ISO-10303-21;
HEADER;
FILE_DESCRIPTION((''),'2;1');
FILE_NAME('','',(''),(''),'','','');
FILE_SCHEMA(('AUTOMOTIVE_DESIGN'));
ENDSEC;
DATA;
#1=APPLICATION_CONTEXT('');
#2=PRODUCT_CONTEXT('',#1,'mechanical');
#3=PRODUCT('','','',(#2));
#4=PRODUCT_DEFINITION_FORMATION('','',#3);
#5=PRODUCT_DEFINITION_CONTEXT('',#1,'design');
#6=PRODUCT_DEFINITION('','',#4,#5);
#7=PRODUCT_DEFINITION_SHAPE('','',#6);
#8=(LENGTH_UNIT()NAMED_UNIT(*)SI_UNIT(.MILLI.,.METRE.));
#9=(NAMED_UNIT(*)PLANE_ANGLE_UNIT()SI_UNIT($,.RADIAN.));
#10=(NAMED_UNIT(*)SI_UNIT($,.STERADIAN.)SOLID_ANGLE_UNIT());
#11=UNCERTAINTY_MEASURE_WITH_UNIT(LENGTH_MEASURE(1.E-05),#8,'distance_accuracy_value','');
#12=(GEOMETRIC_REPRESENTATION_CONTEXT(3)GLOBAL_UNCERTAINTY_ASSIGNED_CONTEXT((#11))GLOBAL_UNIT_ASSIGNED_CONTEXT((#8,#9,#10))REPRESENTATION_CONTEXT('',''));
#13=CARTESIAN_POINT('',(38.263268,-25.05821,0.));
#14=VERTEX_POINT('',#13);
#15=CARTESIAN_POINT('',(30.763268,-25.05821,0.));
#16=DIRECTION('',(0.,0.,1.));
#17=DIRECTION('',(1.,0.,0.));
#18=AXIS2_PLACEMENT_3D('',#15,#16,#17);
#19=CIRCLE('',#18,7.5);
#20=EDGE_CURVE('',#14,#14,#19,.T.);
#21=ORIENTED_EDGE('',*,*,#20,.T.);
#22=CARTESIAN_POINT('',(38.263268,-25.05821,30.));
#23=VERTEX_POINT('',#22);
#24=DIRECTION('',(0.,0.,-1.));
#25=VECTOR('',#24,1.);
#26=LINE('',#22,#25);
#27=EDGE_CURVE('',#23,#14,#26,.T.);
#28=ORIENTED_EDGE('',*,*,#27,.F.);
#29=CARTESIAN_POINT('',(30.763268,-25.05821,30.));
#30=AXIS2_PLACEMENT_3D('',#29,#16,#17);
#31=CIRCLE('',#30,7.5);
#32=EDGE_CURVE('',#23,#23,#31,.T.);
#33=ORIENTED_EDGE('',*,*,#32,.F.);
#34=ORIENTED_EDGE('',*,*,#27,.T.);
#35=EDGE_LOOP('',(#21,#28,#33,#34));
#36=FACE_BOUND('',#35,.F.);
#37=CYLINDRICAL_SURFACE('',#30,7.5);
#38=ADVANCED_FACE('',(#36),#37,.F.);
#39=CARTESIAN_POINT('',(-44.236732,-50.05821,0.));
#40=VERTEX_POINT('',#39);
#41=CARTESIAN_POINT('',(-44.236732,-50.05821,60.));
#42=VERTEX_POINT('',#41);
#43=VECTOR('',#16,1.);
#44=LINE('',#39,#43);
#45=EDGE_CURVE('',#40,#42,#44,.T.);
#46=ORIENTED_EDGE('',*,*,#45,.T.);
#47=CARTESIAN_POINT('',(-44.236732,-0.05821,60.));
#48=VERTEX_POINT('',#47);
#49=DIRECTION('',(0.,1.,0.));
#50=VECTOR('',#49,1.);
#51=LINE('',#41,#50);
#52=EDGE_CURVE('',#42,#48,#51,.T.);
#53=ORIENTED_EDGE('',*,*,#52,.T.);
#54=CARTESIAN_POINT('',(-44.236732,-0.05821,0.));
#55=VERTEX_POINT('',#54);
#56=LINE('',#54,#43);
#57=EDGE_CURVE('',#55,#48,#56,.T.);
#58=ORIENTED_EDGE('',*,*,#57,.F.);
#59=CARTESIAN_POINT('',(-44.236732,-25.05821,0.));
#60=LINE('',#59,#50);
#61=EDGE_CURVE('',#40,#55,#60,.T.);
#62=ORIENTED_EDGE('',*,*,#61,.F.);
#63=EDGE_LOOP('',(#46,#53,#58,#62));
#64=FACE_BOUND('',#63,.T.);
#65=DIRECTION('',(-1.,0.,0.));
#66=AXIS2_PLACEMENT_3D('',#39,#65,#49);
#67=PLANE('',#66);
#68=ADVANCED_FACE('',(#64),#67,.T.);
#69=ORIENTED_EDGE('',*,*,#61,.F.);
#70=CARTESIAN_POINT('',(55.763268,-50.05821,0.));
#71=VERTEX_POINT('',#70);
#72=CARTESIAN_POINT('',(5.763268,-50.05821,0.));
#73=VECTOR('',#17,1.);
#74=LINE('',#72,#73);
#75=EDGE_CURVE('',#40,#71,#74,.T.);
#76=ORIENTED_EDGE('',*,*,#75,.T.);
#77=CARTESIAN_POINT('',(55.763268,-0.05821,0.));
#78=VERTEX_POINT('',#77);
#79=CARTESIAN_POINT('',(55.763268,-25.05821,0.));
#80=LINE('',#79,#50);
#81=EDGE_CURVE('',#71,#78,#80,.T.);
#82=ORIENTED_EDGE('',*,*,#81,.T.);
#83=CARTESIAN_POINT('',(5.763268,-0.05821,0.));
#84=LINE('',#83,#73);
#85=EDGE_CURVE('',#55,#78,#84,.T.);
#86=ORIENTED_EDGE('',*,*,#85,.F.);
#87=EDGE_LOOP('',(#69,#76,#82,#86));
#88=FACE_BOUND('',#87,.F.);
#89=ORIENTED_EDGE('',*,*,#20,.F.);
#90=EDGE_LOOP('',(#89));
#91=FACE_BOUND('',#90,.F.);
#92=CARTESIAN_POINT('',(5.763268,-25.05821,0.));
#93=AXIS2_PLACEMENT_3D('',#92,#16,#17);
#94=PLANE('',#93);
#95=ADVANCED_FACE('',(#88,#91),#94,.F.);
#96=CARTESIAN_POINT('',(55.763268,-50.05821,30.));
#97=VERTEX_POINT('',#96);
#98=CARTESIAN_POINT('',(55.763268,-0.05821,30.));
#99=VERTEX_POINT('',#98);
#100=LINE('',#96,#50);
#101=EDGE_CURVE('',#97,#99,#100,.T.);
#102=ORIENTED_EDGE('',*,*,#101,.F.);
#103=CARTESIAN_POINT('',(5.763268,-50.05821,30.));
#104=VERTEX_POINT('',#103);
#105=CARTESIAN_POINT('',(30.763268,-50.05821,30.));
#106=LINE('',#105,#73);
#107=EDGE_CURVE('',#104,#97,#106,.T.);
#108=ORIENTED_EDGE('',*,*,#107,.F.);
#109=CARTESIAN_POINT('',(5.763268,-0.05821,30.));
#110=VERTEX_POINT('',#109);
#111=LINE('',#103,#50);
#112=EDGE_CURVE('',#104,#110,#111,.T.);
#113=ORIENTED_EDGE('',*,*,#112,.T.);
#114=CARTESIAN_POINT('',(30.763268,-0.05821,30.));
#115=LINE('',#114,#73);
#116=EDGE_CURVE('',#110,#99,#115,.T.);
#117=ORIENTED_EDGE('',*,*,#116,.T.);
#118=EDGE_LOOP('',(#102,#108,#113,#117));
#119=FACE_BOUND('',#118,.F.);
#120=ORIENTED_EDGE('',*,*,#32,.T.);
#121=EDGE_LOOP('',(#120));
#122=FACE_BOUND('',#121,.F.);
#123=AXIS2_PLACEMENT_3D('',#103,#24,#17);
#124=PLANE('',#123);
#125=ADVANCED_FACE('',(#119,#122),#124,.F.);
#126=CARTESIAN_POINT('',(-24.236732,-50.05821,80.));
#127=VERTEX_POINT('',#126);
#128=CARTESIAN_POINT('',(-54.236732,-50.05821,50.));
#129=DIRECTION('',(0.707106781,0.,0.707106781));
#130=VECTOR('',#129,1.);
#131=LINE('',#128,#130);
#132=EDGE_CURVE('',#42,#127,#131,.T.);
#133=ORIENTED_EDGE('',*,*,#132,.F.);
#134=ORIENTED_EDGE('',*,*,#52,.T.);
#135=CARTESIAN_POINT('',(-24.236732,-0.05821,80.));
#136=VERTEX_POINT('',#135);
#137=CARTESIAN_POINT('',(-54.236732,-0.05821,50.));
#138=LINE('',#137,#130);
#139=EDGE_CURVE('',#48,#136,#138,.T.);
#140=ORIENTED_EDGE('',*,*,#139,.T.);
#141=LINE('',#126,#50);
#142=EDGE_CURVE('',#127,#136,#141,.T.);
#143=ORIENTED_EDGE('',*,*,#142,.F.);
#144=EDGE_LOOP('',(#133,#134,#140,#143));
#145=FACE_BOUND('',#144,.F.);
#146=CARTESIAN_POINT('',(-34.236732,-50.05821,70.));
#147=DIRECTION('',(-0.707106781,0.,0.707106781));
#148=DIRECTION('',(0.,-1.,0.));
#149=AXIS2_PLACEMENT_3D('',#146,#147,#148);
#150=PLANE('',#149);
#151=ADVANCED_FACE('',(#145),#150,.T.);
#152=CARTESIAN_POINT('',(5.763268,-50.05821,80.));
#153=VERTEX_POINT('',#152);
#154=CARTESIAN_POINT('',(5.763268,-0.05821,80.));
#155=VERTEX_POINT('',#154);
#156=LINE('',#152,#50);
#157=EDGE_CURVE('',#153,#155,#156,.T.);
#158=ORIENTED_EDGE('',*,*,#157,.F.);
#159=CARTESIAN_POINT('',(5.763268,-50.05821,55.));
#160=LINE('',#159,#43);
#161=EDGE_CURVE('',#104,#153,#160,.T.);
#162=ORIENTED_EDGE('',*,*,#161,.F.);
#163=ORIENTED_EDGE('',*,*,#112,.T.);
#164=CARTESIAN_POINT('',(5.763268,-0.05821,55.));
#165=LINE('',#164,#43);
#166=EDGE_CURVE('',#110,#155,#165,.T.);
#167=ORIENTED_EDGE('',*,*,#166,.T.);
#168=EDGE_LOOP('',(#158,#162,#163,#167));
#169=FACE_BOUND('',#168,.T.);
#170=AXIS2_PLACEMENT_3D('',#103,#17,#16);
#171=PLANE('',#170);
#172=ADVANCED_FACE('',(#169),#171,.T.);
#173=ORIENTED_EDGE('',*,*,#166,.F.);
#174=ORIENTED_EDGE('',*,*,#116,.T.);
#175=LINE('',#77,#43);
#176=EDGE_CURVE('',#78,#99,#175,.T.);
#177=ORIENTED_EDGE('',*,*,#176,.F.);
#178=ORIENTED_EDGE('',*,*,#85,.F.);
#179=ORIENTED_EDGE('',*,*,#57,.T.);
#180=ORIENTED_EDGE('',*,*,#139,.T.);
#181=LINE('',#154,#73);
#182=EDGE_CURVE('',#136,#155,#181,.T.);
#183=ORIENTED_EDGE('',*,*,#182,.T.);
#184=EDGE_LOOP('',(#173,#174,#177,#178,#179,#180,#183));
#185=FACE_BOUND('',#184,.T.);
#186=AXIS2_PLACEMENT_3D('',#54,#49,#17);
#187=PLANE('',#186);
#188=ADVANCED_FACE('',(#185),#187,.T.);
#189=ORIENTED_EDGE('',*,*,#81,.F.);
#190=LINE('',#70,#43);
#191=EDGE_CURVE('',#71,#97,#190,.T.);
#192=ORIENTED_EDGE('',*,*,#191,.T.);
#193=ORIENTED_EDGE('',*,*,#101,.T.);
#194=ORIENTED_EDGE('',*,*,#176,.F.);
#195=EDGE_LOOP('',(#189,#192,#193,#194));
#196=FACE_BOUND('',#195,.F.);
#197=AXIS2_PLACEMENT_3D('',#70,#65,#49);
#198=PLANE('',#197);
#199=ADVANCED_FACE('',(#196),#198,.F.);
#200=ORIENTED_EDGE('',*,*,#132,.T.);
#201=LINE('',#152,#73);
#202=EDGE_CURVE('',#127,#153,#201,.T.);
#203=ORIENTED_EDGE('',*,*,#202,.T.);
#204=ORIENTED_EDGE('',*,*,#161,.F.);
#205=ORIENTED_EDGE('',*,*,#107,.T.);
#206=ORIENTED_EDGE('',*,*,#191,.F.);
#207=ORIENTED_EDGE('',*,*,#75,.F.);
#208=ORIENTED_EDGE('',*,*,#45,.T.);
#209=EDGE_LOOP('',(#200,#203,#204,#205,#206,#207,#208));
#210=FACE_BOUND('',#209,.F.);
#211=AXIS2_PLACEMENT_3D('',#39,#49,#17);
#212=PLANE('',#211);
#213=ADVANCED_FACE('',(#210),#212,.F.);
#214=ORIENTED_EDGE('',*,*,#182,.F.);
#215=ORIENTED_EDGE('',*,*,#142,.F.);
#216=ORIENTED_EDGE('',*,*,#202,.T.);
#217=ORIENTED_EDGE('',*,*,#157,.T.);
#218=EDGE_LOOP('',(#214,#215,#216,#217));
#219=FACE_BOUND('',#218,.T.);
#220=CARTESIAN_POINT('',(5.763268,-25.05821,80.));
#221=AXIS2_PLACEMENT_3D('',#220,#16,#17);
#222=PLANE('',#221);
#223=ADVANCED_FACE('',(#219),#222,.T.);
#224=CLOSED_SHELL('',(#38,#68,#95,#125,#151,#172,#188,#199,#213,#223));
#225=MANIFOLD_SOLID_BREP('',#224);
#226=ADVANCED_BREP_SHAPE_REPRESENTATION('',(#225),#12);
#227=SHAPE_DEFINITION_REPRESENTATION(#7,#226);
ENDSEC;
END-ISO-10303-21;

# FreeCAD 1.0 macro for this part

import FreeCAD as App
import Part
import Sketcher
from FreeCAD import Vector
Q = App.Units.Quantity


def edges_at(feature, points):
    """Names of the edges that pass closest to the given points."""
    edges = feature.Shape.Edges
    near = lambda p: min(range(len(edges)), key=lambda i: edges[i].distToShape(Part.Vertex(*p))[0])
    return sorted({f"Edge{near(p) + 1}" for p in points})

doc = App.newDocument("Part")
body = doc.addObject("PartDesign::Body", "Body")

# Sketch on XY plane
sketch1 = doc.addObject("Sketcher::SketchObject", "Sketch")
body.addObject(sketch1)
sketch1.AttachmentSupport = (doc.XY_Plane, [""])
sketch1.MapMode = "FlatFace"
sketch1.addGeometry(Part.LineSegment(Vector(-44, 0, 0), Vector(-44, -50, 0)), False)
sketch1.addGeometry(Part.LineSegment(Vector(-44, -50, 0), Vector(56, -50, 0)), False)
sketch1.addGeometry(Part.LineSegment(Vector(56, -50, 0), Vector(56, 0, 0)), False)
sketch1.addGeometry(Part.LineSegment(Vector(56, 0, 0), Vector(-44, 0, 0)), False)
sketch1.addConstraint(Sketcher.Constraint("Coincident", 0, 2, 1, 1))
sketch1.addConstraint(Sketcher.Constraint("Coincident", 1, 2, 2, 1))
sketch1.addConstraint(Sketcher.Constraint("Coincident", 2, 2, 3, 1))
sketch1.addConstraint(Sketcher.Constraint("Coincident", 3, 2, 0, 1))
sketch1.addConstraint(Sketcher.Constraint("Vertical", 0))
sketch1.addConstraint(Sketcher.Constraint("Horizontal", 1))
sketch1.addConstraint(Sketcher.Constraint("Vertical", 2))
sketch1.addConstraint(Sketcher.Constraint("Horizontal", 3))
sketch1.addConstraint(Sketcher.Constraint("DistanceX", 1, 1, 1, 2, Q("100 mm")))
sketch1.addConstraint(Sketcher.Constraint("DistanceY", 0, 2, 0, 1, Q("50 mm")))
sketch1.addConstraint(Sketcher.Constraint("DistanceY", 0, 2, -1, 1, Q("50.05821 mm")))
sketch1.addConstraint(Sketcher.Constraint("DistanceX", 0, 2, -1, 1, Q("44.236732 mm")))
pad1 = doc.addObject("PartDesign::Pad", "Pad")
body.addObject(pad1)
pad1.Profile = sketch1
pad1.Length = 80

# Sketch on XZ plane
sketch2 = doc.addObject("Sketcher::SketchObject", "Sketch001")
body.addObject(sketch2)
sketch2.AttachmentSupport = (doc.XZ_Plane, [""])
sketch2.MapMode = "FlatFace"
sketch2.AttachmentOffset = App.Placement(Vector(0, 0, 50.05821), App.Rotation())
sketch2.addGeometry(Part.LineSegment(Vector(6, 80, 0), Vector(6, 30, 0)), False)
sketch2.addGeometry(Part.LineSegment(Vector(6, 30, 0), Vector(56, 30, 0)), False)
sketch2.addGeometry(Part.LineSegment(Vector(56, 30, 0), Vector(56, 80, 0)), False)
sketch2.addGeometry(Part.LineSegment(Vector(56, 80, 0), Vector(6, 80, 0)), False)
sketch2.addConstraint(Sketcher.Constraint("Coincident", 0, 2, 1, 1))
sketch2.addConstraint(Sketcher.Constraint("Coincident", 1, 2, 2, 1))
sketch2.addConstraint(Sketcher.Constraint("Coincident", 2, 2, 3, 1))
sketch2.addConstraint(Sketcher.Constraint("Coincident", 3, 2, 0, 1))
sketch2.addConstraint(Sketcher.Constraint("Vertical", 0))
sketch2.addConstraint(Sketcher.Constraint("Horizontal", 1))
sketch2.addConstraint(Sketcher.Constraint("Vertical", 2))
sketch2.addConstraint(Sketcher.Constraint("Horizontal", 3))
sketch2.addConstraint(Sketcher.Constraint("Equal", 3, 0))
sketch2.addConstraint(Sketcher.Constraint("DistanceX", 1, 1, 1, 2, Q("50 mm")))
sketch2.addConstraint(Sketcher.Constraint("DistanceY", -1, 1, 0, 2, Q("30 mm")))
sketch2.addConstraint(Sketcher.Constraint("DistanceX", -1, 1, 0, 2, Q("5.763268 mm")))
pocket1 = doc.addObject("PartDesign::Pocket", "Pocket")
body.addObject(pocket1)
pocket1.Profile = sketch2
pocket1.Type = "ThroughAll"
doc.recompute()

chamfer = doc.addObject("PartDesign::Chamfer", "Chamfer")
body.addObject(chamfer)
chamfer.Base = (pocket1, edges_at(pocket1, [(-44.237, -25.058, 80)]))
chamfer.Size = 20

# Sketch on XY plane
sketch3 = doc.addObject("Sketcher::SketchObject", "Sketch002")
body.addObject(sketch3)
sketch3.AttachmentSupport = (doc.XY_Plane, [""])
sketch3.MapMode = "FlatFace"
sketch3.AttachmentOffset = App.Placement(Vector(0, 0, 30), App.Rotation())
sketch3.addGeometry(Part.Circle(Vector(31, -25, 0), Vector(0, 0, 1), 8), False)
sketch3.addConstraint(Sketcher.Constraint("Diameter", 0, Q("15 mm")))
sketch3.addConstraint(Sketcher.Constraint("DistanceX", -1, 1, 0, 3, Q("30.763268 mm")))
sketch3.addConstraint(Sketcher.Constraint("DistanceY", 0, 3, -1, 1, Q("25.05821 mm")))
pocket2 = doc.addObject("PartDesign::Pocket", "Pocket001")
body.addObject(pocket2)
pocket2.Profile = sketch3
pocket2.Type = "ThroughAll"

doc.recompute()
